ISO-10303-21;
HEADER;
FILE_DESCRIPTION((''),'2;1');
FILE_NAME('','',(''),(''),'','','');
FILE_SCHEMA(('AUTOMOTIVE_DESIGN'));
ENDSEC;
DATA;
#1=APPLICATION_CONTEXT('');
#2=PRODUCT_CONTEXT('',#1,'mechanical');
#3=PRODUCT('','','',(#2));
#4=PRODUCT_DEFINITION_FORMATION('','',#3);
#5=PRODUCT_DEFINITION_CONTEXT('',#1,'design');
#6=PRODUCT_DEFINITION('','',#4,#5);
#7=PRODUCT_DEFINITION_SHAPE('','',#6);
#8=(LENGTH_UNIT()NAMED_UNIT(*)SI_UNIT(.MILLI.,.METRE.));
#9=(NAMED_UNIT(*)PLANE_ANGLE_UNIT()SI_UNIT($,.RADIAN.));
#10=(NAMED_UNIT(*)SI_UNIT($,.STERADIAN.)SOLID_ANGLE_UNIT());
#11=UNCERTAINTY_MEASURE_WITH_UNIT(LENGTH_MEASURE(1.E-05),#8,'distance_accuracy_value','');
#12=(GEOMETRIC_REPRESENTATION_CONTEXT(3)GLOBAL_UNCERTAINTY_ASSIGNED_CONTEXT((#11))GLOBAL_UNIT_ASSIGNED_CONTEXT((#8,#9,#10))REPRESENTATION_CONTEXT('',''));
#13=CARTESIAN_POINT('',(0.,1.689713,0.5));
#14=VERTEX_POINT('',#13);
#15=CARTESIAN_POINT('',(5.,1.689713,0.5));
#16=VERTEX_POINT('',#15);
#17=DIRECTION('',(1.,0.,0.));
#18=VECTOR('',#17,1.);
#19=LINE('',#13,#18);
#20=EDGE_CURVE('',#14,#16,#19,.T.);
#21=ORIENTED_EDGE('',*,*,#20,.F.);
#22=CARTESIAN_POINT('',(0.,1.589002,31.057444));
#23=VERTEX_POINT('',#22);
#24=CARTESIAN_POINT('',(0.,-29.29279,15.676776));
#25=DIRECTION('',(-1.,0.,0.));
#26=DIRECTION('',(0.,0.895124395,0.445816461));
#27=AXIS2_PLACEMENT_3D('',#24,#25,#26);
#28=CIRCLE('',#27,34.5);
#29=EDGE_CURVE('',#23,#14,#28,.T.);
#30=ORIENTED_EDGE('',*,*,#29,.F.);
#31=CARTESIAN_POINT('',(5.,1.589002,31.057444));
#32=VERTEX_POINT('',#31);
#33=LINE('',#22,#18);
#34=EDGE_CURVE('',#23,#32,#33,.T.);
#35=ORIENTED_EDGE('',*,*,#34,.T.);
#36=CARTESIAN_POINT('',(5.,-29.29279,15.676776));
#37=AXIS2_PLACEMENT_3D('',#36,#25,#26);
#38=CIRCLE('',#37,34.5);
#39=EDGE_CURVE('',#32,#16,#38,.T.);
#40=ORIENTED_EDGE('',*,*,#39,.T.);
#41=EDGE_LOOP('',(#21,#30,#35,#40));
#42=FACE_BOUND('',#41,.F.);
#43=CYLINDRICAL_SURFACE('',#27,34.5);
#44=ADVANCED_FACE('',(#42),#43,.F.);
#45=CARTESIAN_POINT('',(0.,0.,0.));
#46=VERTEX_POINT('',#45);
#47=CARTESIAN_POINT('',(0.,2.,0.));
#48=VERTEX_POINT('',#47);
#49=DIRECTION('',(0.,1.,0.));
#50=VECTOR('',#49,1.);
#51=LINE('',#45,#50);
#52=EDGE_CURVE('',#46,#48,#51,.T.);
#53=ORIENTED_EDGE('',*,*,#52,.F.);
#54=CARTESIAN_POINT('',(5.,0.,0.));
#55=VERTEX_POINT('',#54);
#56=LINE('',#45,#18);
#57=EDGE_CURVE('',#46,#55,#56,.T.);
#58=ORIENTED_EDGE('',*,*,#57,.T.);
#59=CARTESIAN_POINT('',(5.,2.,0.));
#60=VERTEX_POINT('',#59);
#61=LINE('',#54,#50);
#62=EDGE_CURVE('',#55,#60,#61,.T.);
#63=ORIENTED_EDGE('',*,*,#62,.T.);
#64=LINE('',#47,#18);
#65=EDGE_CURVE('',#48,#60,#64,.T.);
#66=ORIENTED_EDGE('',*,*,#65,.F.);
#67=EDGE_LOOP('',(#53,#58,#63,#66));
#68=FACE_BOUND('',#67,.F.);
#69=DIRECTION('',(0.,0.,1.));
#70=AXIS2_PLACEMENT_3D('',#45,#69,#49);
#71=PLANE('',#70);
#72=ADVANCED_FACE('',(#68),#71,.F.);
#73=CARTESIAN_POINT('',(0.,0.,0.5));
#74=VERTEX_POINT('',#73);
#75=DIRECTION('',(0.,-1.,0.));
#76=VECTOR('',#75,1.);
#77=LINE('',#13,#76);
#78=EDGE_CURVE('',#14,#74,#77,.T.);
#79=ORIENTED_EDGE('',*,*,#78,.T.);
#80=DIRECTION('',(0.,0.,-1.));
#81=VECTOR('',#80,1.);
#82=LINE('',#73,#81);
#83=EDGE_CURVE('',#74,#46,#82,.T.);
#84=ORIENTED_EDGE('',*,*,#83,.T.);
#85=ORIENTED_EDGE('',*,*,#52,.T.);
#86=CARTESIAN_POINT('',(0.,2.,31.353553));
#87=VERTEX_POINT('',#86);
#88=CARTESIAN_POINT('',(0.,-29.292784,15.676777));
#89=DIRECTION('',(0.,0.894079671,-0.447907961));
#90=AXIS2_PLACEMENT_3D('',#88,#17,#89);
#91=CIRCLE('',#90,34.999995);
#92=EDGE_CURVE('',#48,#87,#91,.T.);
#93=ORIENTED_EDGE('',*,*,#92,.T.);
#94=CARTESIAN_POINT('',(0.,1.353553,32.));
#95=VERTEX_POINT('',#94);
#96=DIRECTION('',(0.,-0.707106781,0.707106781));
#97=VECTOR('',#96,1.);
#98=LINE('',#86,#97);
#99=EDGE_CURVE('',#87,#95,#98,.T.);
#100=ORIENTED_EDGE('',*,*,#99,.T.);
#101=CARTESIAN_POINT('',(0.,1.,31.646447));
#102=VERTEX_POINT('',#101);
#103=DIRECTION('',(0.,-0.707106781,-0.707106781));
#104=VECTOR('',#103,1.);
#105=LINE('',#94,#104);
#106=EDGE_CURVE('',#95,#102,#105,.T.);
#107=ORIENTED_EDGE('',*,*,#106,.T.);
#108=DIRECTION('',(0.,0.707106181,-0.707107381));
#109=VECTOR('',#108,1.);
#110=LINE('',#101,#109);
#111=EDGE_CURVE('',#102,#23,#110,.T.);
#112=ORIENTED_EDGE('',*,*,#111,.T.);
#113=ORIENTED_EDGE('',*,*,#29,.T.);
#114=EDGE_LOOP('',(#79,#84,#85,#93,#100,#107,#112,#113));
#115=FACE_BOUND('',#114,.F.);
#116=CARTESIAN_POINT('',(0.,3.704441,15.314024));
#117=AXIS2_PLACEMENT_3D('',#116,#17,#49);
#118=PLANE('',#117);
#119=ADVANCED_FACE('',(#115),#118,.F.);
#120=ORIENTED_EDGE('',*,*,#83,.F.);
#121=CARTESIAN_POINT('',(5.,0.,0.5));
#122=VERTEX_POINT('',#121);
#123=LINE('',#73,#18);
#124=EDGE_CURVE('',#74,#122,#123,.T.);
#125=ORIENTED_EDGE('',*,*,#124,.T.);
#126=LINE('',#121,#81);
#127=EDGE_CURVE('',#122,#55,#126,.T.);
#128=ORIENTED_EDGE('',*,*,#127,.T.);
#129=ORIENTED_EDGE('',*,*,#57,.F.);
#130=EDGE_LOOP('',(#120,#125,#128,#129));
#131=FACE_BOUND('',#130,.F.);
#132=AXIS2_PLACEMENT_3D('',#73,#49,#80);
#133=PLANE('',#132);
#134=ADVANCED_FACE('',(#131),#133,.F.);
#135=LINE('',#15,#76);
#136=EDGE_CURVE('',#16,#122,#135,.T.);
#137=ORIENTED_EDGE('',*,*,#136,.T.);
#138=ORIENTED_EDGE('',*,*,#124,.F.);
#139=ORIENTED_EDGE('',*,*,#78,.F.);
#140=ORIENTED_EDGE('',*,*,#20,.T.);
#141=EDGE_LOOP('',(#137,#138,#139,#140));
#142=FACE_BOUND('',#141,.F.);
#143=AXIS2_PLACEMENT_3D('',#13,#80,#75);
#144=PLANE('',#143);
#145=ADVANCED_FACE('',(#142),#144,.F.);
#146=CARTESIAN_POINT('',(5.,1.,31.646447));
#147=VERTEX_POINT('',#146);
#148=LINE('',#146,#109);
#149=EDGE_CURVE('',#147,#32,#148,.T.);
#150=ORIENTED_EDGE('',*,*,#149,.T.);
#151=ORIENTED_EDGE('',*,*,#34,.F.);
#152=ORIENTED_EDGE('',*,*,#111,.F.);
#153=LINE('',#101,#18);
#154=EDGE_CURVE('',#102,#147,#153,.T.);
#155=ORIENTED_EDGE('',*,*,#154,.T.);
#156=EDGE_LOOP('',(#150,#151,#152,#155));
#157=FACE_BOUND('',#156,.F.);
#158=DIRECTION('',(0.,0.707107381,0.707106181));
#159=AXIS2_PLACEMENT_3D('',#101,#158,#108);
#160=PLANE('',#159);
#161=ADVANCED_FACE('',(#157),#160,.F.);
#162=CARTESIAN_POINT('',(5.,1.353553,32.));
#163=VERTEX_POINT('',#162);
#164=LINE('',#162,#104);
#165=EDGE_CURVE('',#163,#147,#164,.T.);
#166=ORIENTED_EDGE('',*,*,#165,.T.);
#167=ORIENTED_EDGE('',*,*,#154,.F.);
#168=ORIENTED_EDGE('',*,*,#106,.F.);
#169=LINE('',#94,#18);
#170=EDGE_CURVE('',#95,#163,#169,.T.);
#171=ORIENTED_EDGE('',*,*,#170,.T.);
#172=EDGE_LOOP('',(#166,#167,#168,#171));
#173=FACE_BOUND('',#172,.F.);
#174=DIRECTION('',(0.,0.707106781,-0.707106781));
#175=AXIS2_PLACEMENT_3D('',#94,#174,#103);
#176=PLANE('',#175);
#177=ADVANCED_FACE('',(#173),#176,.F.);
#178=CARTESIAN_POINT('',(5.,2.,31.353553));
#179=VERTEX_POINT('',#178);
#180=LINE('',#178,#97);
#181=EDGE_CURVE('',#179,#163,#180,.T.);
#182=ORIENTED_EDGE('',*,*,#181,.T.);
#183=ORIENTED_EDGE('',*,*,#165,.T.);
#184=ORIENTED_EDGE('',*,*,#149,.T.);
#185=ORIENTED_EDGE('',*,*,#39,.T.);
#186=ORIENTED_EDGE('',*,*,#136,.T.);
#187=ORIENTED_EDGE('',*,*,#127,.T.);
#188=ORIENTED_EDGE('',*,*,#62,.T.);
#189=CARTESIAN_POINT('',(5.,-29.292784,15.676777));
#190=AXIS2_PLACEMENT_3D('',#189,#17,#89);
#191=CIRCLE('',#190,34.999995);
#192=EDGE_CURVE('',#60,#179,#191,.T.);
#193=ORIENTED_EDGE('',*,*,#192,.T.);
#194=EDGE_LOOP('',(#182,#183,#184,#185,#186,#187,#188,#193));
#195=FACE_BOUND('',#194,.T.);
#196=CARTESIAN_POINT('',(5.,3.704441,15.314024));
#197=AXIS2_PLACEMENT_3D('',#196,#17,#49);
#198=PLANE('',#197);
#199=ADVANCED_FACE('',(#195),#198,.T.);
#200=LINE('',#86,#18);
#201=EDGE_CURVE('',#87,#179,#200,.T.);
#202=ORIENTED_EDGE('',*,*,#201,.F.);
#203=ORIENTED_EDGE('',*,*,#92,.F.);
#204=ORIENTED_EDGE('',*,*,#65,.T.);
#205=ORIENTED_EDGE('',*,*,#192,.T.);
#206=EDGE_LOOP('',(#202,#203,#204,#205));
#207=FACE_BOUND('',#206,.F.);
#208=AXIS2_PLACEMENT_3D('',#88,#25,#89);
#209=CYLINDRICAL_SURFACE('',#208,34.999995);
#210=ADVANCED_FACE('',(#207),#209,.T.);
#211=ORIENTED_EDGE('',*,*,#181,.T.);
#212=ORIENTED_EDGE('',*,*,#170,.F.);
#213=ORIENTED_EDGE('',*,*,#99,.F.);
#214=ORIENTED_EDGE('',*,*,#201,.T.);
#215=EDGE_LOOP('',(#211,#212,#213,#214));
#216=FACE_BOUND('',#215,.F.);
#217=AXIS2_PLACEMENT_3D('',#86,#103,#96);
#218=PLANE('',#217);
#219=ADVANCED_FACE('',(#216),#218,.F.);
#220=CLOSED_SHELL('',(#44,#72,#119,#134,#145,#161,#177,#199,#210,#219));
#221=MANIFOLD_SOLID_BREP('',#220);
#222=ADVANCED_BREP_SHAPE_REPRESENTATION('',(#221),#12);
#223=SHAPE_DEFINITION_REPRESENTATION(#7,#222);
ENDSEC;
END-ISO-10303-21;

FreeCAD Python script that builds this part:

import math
import FreeCAD as App
import Part
import Sketcher
Q = App.Units.Quantity

doc = App.newDocument("Part")
body = doc.addObject("PartDesign::Body", "Body")

sketch1 = body.newObject("Sketcher::SketchObject", "Sketch")
sketch1.AttachmentSupport = (doc.getObject("YZ_Plane"), [""])
sketch1.MapMode = "FlatFace"
sketch1.addGeometry([
    Part.LineSegment(App.Vector(0, 0.5, 0), App.Vector(0, 0, 0)),
    Part.LineSegment(App.Vector(0, 0, 0), App.Vector(2, 0, 0)),
    Part.ArcOfCircle(Part.Circle(App.Vector(-29.292784, 15.676777, 0), App.Vector(0, 0, 1), 34.999995), math.radians(-26.60954), math.radians(26.60954)),
    Part.LineSegment(App.Vector(2, 31.353553, 0), App.Vector(1.353553, 32, 0)),
    Part.LineSegment(App.Vector(1.353553, 32, 0), App.Vector(1, 31.646447, 0)),
    Part.LineSegment(App.Vector(1, 31.646447, 0), App.Vector(1.589002, 31.057444, 0)),
    Part.ArcOfCircle(Part.Circle(App.Vector(-29.29279, 15.676776, 0), App.Vector(0, 0, 1), 34.5), math.radians(-26.097919), math.radians(26.475588)),
    Part.LineSegment(App.Vector(1.689713, 0.5, 0), App.Vector(0, 0.5, 0)),
], False)
sketch1.addConstraint([
    Sketcher.Constraint("Coincident", 0, 2, 1, 1),
    Sketcher.Constraint("Coincident", 1, 2, 2, 1),
    Sketcher.Constraint("Coincident", 2, 2, 3, 1),
    Sketcher.Constraint("Coincident", 3, 2, 4, 1),
    Sketcher.Constraint("Coincident", 4, 2, 5, 1),
    Sketcher.Constraint("Coincident", 5, 2, 6, 2),
    Sketcher.Constraint("Coincident", 6, 1, 7, 1),
    Sketcher.Constraint("Coincident", 7, 2, 0, 1),
    Sketcher.Constraint("Vertical", 0),
    Sketcher.Constraint("Horizontal", 1),
    Sketcher.Constraint("Horizontal", 7),
    Sketcher.Constraint("Coincident", 0, 2, -1, 1),
    Sketcher.Constraint("Coincident", 6, 3, 2, 3),
    Sketcher.Constraint("Perpendicular", 3, 4),
    Sketcher.Constraint("Perpendicular", 4, 5),
    Sketcher.Constraint("Vertical", 1, 2, 2, 2),
    Sketcher.Constraint("Radius", 6, 34.5),
    Sketcher.Constraint("DistanceX", 1, 1, 1, 2, 2.0),
    Sketcher.Constraint("Angle", 3, Q("135 deg")),
    Sketcher.Constraint("DistanceY", 0, 2, 0, 1, 0.5),
    Sketcher.Constraint("DistanceY", -1, 1, 3, 2, 32.0),
    Sketcher.Constraint("DistanceX", -1, 1, 4, 2, 1.0),
    Sketcher.Constraint("Distance", 4, 0.499999),
    Sketcher.Constraint("Radius", 2, 34.999995),
])
pad1 = body.newObject("PartDesign::Pad", "Pad")
pad1.Profile = sketch1
pad1.Length = 5

doc.recompute()
